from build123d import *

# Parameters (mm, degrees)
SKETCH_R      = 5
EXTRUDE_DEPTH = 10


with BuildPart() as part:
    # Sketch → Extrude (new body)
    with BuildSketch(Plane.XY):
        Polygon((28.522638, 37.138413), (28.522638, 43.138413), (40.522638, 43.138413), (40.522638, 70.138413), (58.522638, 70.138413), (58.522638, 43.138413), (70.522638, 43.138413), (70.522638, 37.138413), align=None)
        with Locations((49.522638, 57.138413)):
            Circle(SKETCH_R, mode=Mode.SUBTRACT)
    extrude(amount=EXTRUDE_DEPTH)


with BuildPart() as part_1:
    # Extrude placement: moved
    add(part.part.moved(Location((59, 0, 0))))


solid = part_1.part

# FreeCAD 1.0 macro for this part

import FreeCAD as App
import Part
import Sketcher

V = App.Vector


def add_polygon(sketch, points):
    """Adds a closed chain of lines whose ends are joined by coincident constraints."""
    first, n = sketch.GeometryCount, len(points)
    for a, b in zip(points, points[1:] + points[:1]):
        sketch.addGeometry(Part.LineSegment(App.Vector(*a, 0), App.Vector(*b, 0)), False)
    for i in range(n):
        sketch.addConstraint(Sketcher.Constraint("Coincident", first + i, 2, first + (i + 1) % n, 1))

doc = App.newDocument("Part")
body = doc.addObject("PartDesign::Body", "Body")

sketch1 = body.newObject("Sketcher::SketchObject", "Sketch")
sketch1.AttachmentSupport = (doc.getObject("XY_Plane"), [""])
sketch1.MapMode = "FlatFace"
add_polygon(sketch1, [(29, 43), (29, 37), (71, 37), (71, 43), (59, 43), (59, 70), (41, 70), (41, 43)])
sketch1.addGeometry(Part.Circle(V(50, 57, 0), V(0, 0, 1), 5), False)
sketch1.addConstraint([
    Sketcher.Constraint("Vertical", 0),
    Sketcher.Constraint("Horizontal", 1),
    Sketcher.Constraint("Vertical", 2),
    Sketcher.Constraint("Horizontal", 3),
    Sketcher.Constraint("Vertical", 4),
    Sketcher.Constraint("Horizontal", 5),
    Sketcher.Constraint("Vertical", 6),
    Sketcher.Constraint("Horizontal", 7),
    Sketcher.Constraint("Horizontal", 3, 2, 6, 2),
    Sketcher.Constraint("Equal", 3, 7),
    Sketcher.Constraint("Diameter", 8, 10.0),
    Sketcher.Constraint("DistanceX", 1, 1, 1, 2, 42.0),
    Sketcher.Constraint("DistanceX", 3, 2, 3, 1, 12.0),
    Sketcher.Constraint("DistanceY", 0, 2, 0, 1, 6.0),
    Sketcher.Constraint("DistanceY", 4, 1, 4, 2, 27.0),
    Sketcher.Constraint("DistanceX", 0, 2, 8, 3, 21.0),
    Sketcher.Constraint("DistanceY", 0, 2, 8, 3, 20.0),
    Sketcher.Constraint("DistanceX", -1, 1, 0, 2, 28.522638),
    Sketcher.Constraint("DistanceY", -1, 1, 8, 3, 57.138413),
])
pad1 = body.newObject("PartDesign::Pad", "Pad")
pad1.Profile = sketch1
pad1.Length = 10
body2 = doc.addObject("PartDesign::Body", "Body001")
doc.recompute()

body.Placement = App.Placement(V(59, 0, 0), App.Rotation(V(0, 0, 1), 0))
boolean = body2.newObject("PartDesign::Boolean", "Boolean")
boolean.Type = "Fuse"
boolean.addObjects([body])

doc.recompute()
